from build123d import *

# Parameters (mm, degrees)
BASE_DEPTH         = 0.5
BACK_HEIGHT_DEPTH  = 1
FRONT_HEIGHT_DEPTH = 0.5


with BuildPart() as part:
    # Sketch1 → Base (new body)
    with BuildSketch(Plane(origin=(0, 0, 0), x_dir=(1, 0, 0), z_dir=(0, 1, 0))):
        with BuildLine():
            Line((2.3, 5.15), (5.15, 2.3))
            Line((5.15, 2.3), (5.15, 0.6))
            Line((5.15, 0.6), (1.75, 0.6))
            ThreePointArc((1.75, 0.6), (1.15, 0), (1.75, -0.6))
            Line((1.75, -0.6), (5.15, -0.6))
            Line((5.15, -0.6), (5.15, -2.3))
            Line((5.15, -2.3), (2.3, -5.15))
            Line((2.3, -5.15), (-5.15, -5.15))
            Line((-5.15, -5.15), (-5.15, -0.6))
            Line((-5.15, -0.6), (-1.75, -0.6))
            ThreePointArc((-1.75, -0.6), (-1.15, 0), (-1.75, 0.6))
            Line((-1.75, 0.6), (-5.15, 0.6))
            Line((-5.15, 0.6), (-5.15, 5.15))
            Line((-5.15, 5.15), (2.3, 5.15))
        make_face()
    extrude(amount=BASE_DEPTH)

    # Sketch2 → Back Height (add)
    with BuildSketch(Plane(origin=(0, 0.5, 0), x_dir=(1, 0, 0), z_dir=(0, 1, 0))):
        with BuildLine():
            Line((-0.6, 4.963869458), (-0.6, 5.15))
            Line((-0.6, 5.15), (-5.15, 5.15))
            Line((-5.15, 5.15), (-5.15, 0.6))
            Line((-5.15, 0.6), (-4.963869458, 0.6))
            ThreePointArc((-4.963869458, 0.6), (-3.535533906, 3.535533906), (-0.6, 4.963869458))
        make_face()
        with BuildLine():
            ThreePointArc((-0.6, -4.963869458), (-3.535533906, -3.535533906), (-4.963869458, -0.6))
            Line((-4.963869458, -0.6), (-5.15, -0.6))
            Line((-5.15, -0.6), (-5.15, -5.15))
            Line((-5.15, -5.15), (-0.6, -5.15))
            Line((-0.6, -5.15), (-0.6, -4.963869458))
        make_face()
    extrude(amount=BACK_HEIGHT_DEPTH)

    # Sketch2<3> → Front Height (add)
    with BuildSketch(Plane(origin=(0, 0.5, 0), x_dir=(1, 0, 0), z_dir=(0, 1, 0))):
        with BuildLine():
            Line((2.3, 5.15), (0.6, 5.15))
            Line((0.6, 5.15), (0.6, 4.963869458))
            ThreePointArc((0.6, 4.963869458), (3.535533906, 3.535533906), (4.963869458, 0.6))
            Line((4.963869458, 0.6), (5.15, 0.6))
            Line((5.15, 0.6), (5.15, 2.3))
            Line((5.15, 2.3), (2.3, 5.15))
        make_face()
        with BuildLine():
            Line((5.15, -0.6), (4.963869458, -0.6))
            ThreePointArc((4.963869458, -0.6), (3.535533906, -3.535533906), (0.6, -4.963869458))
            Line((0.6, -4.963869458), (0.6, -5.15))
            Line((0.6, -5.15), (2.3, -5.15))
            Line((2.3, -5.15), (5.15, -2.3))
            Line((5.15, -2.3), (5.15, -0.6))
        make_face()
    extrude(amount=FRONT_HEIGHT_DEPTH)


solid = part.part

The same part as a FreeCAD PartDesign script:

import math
import FreeCAD as App
import Part
import Sketcher

doc = App.newDocument("Part")
body = doc.addObject("PartDesign::Body", "Body")

sketch1 = body.newObject("Sketcher::SketchObject", "Sketch")
sketch1.AttachmentSupport = (doc.getObject("XZ_Plane"), [""])
sketch1.MapMode = "FlatFace"
sketch1.addGeometry([
    Part.LineSegment(App.Vector(5.2, -2.3, 0), App.Vector(2.3, -5.2, 0)),
    Part.LineSegment(App.Vector(2.3, -5.2, 0), App.Vector(-5.2, -5.2, 0)),
    Part.LineSegment(App.Vector(-5.2, -5.2, 0), App.Vector(-5.2, -0.6, 0)),
    Part.LineSegment(App.Vector(-5.2, -0.6, 0), App.Vector(-1.8, -0.6, 0)),
    Part.ArcOfCircle(Part.Circle(App.Vector(-1.8, 0, 0), App.Vector(0, 0, 1), 0.6), math.radians(-90), math.radians(90)),
    Part.LineSegment(App.Vector(-1.8, 0.6, 0), App.Vector(-5.2, 0.6, 0)),
    Part.LineSegment(App.Vector(-5.2, 0.6, 0), App.Vector(-5.2, 5.2, 0)),
    Part.LineSegment(App.Vector(-5.2, 5.2, 0), App.Vector(2.3, 5.2, 0)),
    Part.LineSegment(App.Vector(2.3, 5.2, 0), App.Vector(5.2, 2.3, 0)),
    Part.LineSegment(App.Vector(5.2, 2.3, 0), App.Vector(5.2, 0.6, 0)),
    Part.LineSegment(App.Vector(5.2, 0.6, 0), App.Vector(1.8, 0.6, 0)),
    Part.ArcOfCircle(Part.Circle(App.Vector(1.8, 0, 0), App.Vector(0, 0, 1), 0.6), math.radians(90), math.radians(270)),
    Part.LineSegment(App.Vector(1.8, -0.6, 0), App.Vector(5.2, -0.6, 0)),
    Part.LineSegment(App.Vector(5.2, -0.6, 0), App.Vector(5.2, -2.3, 0)),
], False)
sketch1.addConstraint([
    Sketcher.Constraint("Coincident", 0, 2, 1, 1),
    Sketcher.Constraint("Coincident", 1, 2, 2, 1),
    Sketcher.Constraint("Coincident", 2, 2, 3, 1),
    Sketcher.Constraint("Tangent", 3, 2, 4, 1),
    Sketcher.Constraint("Tangent", 4, 2, 5, 1),
    Sketcher.Constraint("Coincident", 5, 2, 6, 1),
    Sketcher.Constraint("Coincident", 6, 2, 7, 1),
    Sketcher.Constraint("Coincident", 7, 2, 8, 1),
    Sketcher.Constraint("Coincident", 8, 2, 9, 1),
    Sketcher.Constraint("Coincident", 9, 2, 10, 1),
    Sketcher.Constraint("Tangent", 10, 2, 11, 1),
    Sketcher.Constraint("Tangent", 11, 2, 12, 1),
    Sketcher.Constraint("Coincident", 12, 2, 13, 1),
    Sketcher.Constraint("Coincident", 13, 2, 0, 1),
    Sketcher.Constraint("Horizontal", 1),
    Sketcher.Constraint("Vertical", 2),
    Sketcher.Constraint("Horizontal", 3),
    Sketcher.Constraint("Horizontal", 5),
    Sketcher.Constraint("Vertical", 6),
    Sketcher.Constraint("Horizontal", 7),
    Sketcher.Constraint("Vertical", 9),
    Sketcher.Constraint("Horizontal", 10),
    Sketcher.Constraint("Horizontal", 12),
    Sketcher.Constraint("Vertical", 13),
    Sketcher.Constraint("Equal", 4, 11),
    Sketcher.Constraint("Symmetric", 4, 3, 11, 3, -1, 1),
    Sketcher.Constraint("Symmetric", 5, 2, 9, 2, -2),
    Sketcher.Constraint("Symmetric", 1, 2, 6, 2, -1),
    Sketcher.Constraint("Symmetric", 8, 2, 13, 2, -1),
    Sketcher.Constraint("Perpendicular", 0, 8),
    Sketcher.Constraint("Vertical", 0, 2, 7, 2),
    Sketcher.Constraint("Radius", 4, 0.6),
    Sketcher.Constraint("DistanceX", 3, 1, 3, 2, 3.4),
    Sketcher.Constraint("DistanceY", 9, 2, 9, 1, 1.7),
    Sketcher.Constraint("DistanceX", 1, 2, 1, 1, 7.45),
    Sketcher.Constraint("DistanceY", 2, 1, 2, 2, 4.55),
])
pad1 = body.newObject("PartDesign::Pad", "Pad")
pad1.Profile = sketch1
pad1.Length = 0.5
pad1.Reversed = True

sketch2 = body.newObject("Sketcher::SketchObject", "Sketch001")
sketch2.AttachmentSupport = (doc.getObject("XZ_Plane"), [""])
sketch2.MapMode = "FlatFace"
sketch2.AttachmentOffset = App.Placement(App.Vector(0, 0, -0.5), App.Rotation())
sketch2.addGeometry([
    Part.LineSegment(App.Vector(-0.6, -4.96, 0), App.Vector(-0.6, -5.15, 0)),
    Part.LineSegment(App.Vector(-0.6, -5.15, 0), App.Vector(-5.15, -5.15, 0)),
    Part.LineSegment(App.Vector(-5.15, -5.15, 0), App.Vector(-5.15, -0.6, 0)),
    Part.LineSegment(App.Vector(-5.15, -0.6, 0), App.Vector(-4.96, -0.6, 0)),
    Part.ArcOfCircle(Part.Circle(App.Vector(0, 0, 0), App.Vector(0, 0, 1), 5), math.radians(-173), math.radians(-97)),
    Part.ArcOfCircle(Part.Circle(App.Vector(0, 0, 0), App.Vector(0, 0, 1), 5), math.radians(97), math.radians(173)),
    Part.LineSegment(App.Vector(-4.96, 0.6, 0), App.Vector(-5.15, 0.6, 0)),
    Part.LineSegment(App.Vector(-5.15, 0.6, 0), App.Vector(-5.15, 5.15, 0)),
    Part.LineSegment(App.Vector(-5.15, 5.15, 0), App.Vector(-0.6, 5.15, 0)),
    Part.LineSegment(App.Vector(-0.6, 5.15, 0), App.Vector(-0.6, 4.96, 0)),
], False)
sketch2.addConstraint([
    Sketcher.Constraint("Coincident", 0, 2, 1, 1),
    Sketcher.Constraint("Coincident", 1, 2, 2, 1),
    Sketcher.Constraint("Coincident", 2, 2, 3, 1),
    Sketcher.Constraint("Coincident", 3, 2, 4, 1),
    Sketcher.Constraint("Coincident", 4, 2, 0, 1),
    Sketcher.Constraint("Coincident", 5, 2, 6, 1),
    Sketcher.Constraint("Coincident", 6, 2, 7, 1),
    Sketcher.Constraint("Coincident", 7, 2, 8, 1),
    Sketcher.Constraint("Coincident", 8, 2, 9, 1),
    Sketcher.Constraint("Coincident", 9, 2, 5, 1),
    Sketcher.Constraint("Vertical", 0),
    Sketcher.Constraint("Horizontal", 1),
    Sketcher.Constraint("Vertical", 2),
    Sketcher.Constraint("Horizontal", 3),
    Sketcher.Constraint("Horizontal", 6),
    Sketcher.Constraint("Vertical", 7),
    Sketcher.Constraint("Horizontal", 8),
    Sketcher.Constraint("Vertical", 9),
    Sketcher.Constraint("Coincident", 4, 3, -1, 1),
    Sketcher.Constraint("Coincident", 5, 3, -1, 1),
    Sketcher.Constraint("Equal", 4, 5),
    Sketcher.Constraint("Symmetric", 2, 2, 6, 2, -1),
    Sketcher.Constraint("Symmetric", 0, 2, 8, 2, -1),
    Sketcher.Constraint("Equal", 6, 0),
    Sketcher.Constraint("Equal", 8, 2),
    Sketcher.Constraint("Radius", 4, 5.0),
    Sketcher.Constraint("DistanceX", 1, 2, 1, 1, 4.55),
    Sketcher.Constraint("DistanceX", 0, 2, -1, 1, 0.6),
])
pad2 = body.newObject("PartDesign::Pad", "Pad001")
pad2.Profile = sketch2
pad2.Length = 1
pad2.Reversed = True

sketch3 = body.newObject("Sketcher::SketchObject", "Sketch002")
sketch3.AttachmentSupport = (doc.getObject("XZ_Plane"), [""])
sketch3.MapMode = "FlatFace"
sketch3.AttachmentOffset = App.Placement(App.Vector(0, 0, -0.5), App.Rotation())
sketch3.addGeometry([
    Part.LineSegment(App.Vector(2.3, -5.15, 0), App.Vector(0.6, -5.15, 0)),
    Part.LineSegment(App.Vector(0.6, -5.15, 0), App.Vector(0.6, -4.96, 0)),
    Part.ArcOfCircle(Part.Circle(App.Vector(0, 0, 0), App.Vector(0, 0, 1), 5), math.radians(-83), math.radians(-7)),
    Part.LineSegment(App.Vector(4.96, -0.6, 0), App.Vector(5.15, -0.6, 0)),
    Part.LineSegment(App.Vector(5.15, -0.6, 0), App.Vector(5.15, -2.3, 0)),
    Part.LineSegment(App.Vector(5.15, -2.3, 0), App.Vector(2.3, -5.15, 0)),
    Part.LineSegment(App.Vector(5.15, 0.6, 0), App.Vector(4.96, 0.6, 0)),
    Part.ArcOfCircle(Part.Circle(App.Vector(0, 0, 0), App.Vector(0, 0, 1), 5), math.radians(7), math.radians(83)),
    Part.LineSegment(App.Vector(0.6, 4.96, 0), App.Vector(0.6, 5.15, 0)),
    Part.LineSegment(App.Vector(0.6, 5.15, 0), App.Vector(2.3, 5.15, 0)),
    Part.LineSegment(App.Vector(2.3, 5.15, 0), App.Vector(5.15, 2.3, 0)),
    Part.LineSegment(App.Vector(5.15, 2.3, 0), App.Vector(5.15, 0.6, 0)),
], False)
sketch3.addConstraint([
    Sketcher.Constraint("Coincident", 0, 2, 1, 1),
    Sketcher.Constraint("Coincident", 1, 2, 2, 1),
    Sketcher.Constraint("Coincident", 2, 2, 3, 1),
    Sketcher.Constraint("Coincident", 3, 2, 4, 1),
    Sketcher.Constraint("Coincident", 4, 2, 5, 1),
    Sketcher.Constraint("Coincident", 5, 2, 0, 1),
    Sketcher.Constraint("Coincident", 6, 2, 7, 1),
    Sketcher.Constraint("Coincident", 7, 2, 8, 1),
    Sketcher.Constraint("Coincident", 8, 2, 9, 1),
    Sketcher.Constraint("Coincident", 9, 2, 10, 1),
    Sketcher.Constraint("Coincident", 10, 2, 11, 1),
    Sketcher.Constraint("Coincident", 11, 2, 6, 1),
    Sketcher.Constraint("Horizontal", 0),
    Sketcher.Constraint("Vertical", 1),
    Sketcher.Constraint("Horizontal", 3),
    Sketcher.Constraint("Vertical", 4),
    Sketcher.Constraint("Horizontal", 6),
    Sketcher.Constraint("Vertical", 8),
    Sketcher.Constraint("Horizontal", 9),
    Sketcher.Constraint("Vertical", 11),
    Sketcher.Constraint("Coincident", 2, 3, -1, 1),
    Sketcher.Constraint("Coincident", 7, 3, -1, 1),
    Sketcher.Constraint("Equal", 2, 7),
    Sketcher.Constraint("Symmetric", 0, 2, 8, 2, -1),
    Sketcher.Constraint("Symmetric", 4, 2, 10, 2, -1),
    Sketcher.Constraint("Perpendicular", 5, 10),
    Sketcher.Constraint("Vertical", 2, 2, 6, 2),
    Sketcher.Constraint("Vertical", 5, 2, 9, 2),
    Sketcher.Constraint("Equal", 6, 1),
    Sketcher.Constraint("Equal", 9, 4),
    Sketcher.Constraint("Radius", 2, 5.0),
    Sketcher.Constraint("DistanceX", 0, 2, 0, 1, 1.7),
    Sketcher.Constraint("DistanceX", -1, 1, 0, 2, 0.6),
    Sketcher.Constraint("DistanceY", 0, 2, -1, 1, 5.15),
])
pad3 = body.newObject("PartDesign::Pad", "Pad002")
pad3.Profile = sketch3
pad3.Length = 0.5
pad3.Reversed = True

doc.recompute()
